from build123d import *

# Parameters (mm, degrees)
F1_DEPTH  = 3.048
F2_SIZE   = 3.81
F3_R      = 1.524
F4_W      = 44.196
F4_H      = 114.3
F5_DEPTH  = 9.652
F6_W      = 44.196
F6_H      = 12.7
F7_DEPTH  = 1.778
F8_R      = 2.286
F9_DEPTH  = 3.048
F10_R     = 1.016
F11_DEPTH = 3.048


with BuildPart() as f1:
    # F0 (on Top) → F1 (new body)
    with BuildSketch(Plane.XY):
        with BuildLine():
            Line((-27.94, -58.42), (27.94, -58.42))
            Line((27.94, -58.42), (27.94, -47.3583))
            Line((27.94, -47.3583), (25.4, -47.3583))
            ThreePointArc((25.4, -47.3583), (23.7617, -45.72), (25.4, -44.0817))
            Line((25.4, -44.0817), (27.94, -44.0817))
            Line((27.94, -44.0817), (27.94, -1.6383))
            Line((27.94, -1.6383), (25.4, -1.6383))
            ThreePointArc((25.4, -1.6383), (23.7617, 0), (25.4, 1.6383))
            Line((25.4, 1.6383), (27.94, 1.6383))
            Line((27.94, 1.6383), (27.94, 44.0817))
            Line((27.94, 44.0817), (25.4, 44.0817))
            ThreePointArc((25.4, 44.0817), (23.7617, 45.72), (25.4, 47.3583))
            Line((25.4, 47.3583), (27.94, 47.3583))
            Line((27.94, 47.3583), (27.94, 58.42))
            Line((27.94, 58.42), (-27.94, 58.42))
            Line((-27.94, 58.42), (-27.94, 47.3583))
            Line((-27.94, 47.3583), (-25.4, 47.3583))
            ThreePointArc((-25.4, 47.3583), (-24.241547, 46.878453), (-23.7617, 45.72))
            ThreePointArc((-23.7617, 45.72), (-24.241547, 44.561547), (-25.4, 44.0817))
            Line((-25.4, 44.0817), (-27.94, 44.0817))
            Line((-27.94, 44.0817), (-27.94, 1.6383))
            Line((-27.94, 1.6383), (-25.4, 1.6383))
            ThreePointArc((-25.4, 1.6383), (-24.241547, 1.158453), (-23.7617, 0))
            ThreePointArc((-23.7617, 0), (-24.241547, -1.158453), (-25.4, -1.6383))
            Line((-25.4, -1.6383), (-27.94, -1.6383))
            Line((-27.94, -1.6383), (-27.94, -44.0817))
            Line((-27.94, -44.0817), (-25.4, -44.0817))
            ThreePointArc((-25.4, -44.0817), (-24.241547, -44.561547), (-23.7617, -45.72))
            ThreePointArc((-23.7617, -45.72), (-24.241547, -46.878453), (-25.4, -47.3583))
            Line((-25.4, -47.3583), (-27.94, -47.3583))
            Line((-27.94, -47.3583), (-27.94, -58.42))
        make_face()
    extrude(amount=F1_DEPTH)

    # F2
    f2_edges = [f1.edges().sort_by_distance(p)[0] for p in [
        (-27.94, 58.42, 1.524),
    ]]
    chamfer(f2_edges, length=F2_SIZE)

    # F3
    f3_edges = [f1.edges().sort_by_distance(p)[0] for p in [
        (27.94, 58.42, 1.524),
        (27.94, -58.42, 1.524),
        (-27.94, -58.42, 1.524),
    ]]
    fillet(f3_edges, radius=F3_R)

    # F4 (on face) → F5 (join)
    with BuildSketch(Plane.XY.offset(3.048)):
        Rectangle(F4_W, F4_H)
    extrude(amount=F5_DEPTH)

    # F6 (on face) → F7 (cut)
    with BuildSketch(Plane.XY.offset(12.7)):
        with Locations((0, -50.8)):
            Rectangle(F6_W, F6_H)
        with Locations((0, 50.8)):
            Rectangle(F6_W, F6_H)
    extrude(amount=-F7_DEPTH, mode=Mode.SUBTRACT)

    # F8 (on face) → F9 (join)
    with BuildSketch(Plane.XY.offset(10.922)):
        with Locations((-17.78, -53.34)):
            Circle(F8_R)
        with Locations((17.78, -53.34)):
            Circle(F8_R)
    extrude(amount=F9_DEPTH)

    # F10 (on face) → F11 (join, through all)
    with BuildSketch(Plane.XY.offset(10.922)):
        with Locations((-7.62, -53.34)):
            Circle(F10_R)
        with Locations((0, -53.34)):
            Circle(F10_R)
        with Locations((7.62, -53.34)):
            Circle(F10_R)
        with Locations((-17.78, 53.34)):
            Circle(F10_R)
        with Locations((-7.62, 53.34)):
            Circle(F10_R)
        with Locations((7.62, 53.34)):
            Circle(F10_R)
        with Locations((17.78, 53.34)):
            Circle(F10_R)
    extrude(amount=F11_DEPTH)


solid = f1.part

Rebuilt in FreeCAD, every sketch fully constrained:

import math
import FreeCAD as App
import Part
import Sketcher
Q = App.Units.Quantity


def edges_at(feature, points):
    """Names of the edges that pass closest to the given points."""
    edges = feature.Shape.Edges
    near = lambda p: min(range(len(edges)), key=lambda i: edges[i].distToShape(Part.Vertex(*p))[0])
    return sorted({f"Edge{near(p) + 1}" for p in points})


def add_polygon(sketch, points):
    """Adds a closed chain of lines whose ends are joined by coincident constraints."""
    first, n = sketch.GeometryCount, len(points)
    for a, b in zip(points, points[1:] + points[:1]):
        sketch.addGeometry(Part.LineSegment(App.Vector(*a, 0), App.Vector(*b, 0)), False)
    for i in range(n):
        sketch.addConstraint(Sketcher.Constraint("Coincident", first + i, 2, first + (i + 1) % n, 1))

doc = App.newDocument("Part")
body = doc.addObject("PartDesign::Body", "Body")

sketch1 = body.newObject("Sketcher::SketchObject", "Sketch")
sketch1.AttachmentSupport = (doc.getObject("XY_Plane"), [""])
sketch1.MapMode = "FlatFace"
sketch1.addGeometry([
    Part.LineSegment(App.Vector(-27.94, -58.42, 0), App.Vector(27.94, -58.42, 0)),
    Part.LineSegment(App.Vector(27.94, -58.42, 0), App.Vector(27.94, -47.3583, 0)),
    Part.LineSegment(App.Vector(27.94, -47.3583, 0), App.Vector(25.4, -47.3583, 0)),
    Part.ArcOfCircle(Part.Circle(App.Vector(25.4, -45.72, 0), App.Vector(0, 0, 1), 1.6383), math.radians(90), math.radians(270)),
    Part.LineSegment(App.Vector(25.4, -44.0817, 0), App.Vector(27.94, -44.0817, 0)),
    Part.LineSegment(App.Vector(27.94, -44.0817, 0), App.Vector(27.94, -1.6383, 0)),
    Part.LineSegment(App.Vector(27.94, -1.6383, 0), App.Vector(25.4, -1.6383, 0)),
    Part.ArcOfCircle(Part.Circle(App.Vector(25.4, 0, 0), App.Vector(0, 0, 1), 1.6383), math.radians(90), math.radians(270)),
    Part.LineSegment(App.Vector(25.4, 1.6383, 0), App.Vector(27.94, 1.6383, 0)),
    Part.LineSegment(App.Vector(27.94, 1.6383, 0), App.Vector(27.94, 44.0817, 0)),
    Part.LineSegment(App.Vector(27.94, 44.0817, 0), App.Vector(25.4, 44.0817, 0)),
    Part.ArcOfCircle(Part.Circle(App.Vector(25.4, 45.72, 0), App.Vector(0, 0, 1), 1.6383), math.radians(90), math.radians(270)),
    Part.LineSegment(App.Vector(25.4, 47.3583, 0), App.Vector(27.94, 47.3583, 0)),
    Part.LineSegment(App.Vector(27.94, 47.3583, 0), App.Vector(27.94, 58.42, 0)),
    Part.LineSegment(App.Vector(27.94, 58.42, 0), App.Vector(-27.94, 58.42, 0)),
    Part.LineSegment(App.Vector(-27.94, 58.42, 0), App.Vector(-27.94, 47.3583, 0)),
    Part.LineSegment(App.Vector(-27.94, 47.3583, 0), App.Vector(-25.4, 47.3583, 0)),
    Part.ArcOfCircle(Part.Circle(App.Vector(-25.4, 45.72, 0), App.Vector(0, 0, 1), 1.6383), math.radians(0.000005), math.radians(89.999995)),
    Part.ArcOfCircle(Part.Circle(App.Vector(-25.4, 45.72, 0), App.Vector(0, 0, 1), 1.6383), math.radians(-89.999995), math.radians(-0.000005)),
    Part.LineSegment(App.Vector(-25.4, 44.0817, 0), App.Vector(-27.94, 44.0817, 0)),
    Part.LineSegment(App.Vector(-27.94, 44.0817, 0), App.Vector(-27.94, 1.6383, 0)),
    Part.LineSegment(App.Vector(-27.94, 1.6383, 0), App.Vector(-25.4, 1.6383, 0)),
    Part.ArcOfCircle(Part.Circle(App.Vector(-25.4, 0, 0), App.Vector(0, 0, 1), 1.6383), math.radians(0.000005), math.radians(89.999995)),
    Part.ArcOfCircle(Part.Circle(App.Vector(-25.4, 0, 0), App.Vector(0, 0, 1), 1.6383), math.radians(-89.999995), math.radians(-0.000005)),
    Part.LineSegment(App.Vector(-25.4, -1.6383, 0), App.Vector(-27.94, -1.6383, 0)),
    Part.LineSegment(App.Vector(-27.94, -1.6383, 0), App.Vector(-27.94, -44.0817, 0)),
    Part.LineSegment(App.Vector(-27.94, -44.0817, 0), App.Vector(-25.4, -44.0817, 0)),
    Part.ArcOfCircle(Part.Circle(App.Vector(-25.4, -45.72, 0), App.Vector(0, 0, 1), 1.6383), math.radians(0.000005), math.radians(89.999995)),
    Part.ArcOfCircle(Part.Circle(App.Vector(-25.4, -45.72, 0), App.Vector(0, 0, 1), 1.6383), math.radians(-89.999995), math.radians(-0.000005)),
    Part.LineSegment(App.Vector(-25.4, -47.3583, 0), App.Vector(-27.94, -47.3583, 0)),
    Part.LineSegment(App.Vector(-27.94, -47.3583, 0), App.Vector(-27.94, -58.42, 0)),
], False)
sketch1.addConstraint([
    Sketcher.Constraint("Coincident", 0, 2, 1, 1),
    Sketcher.Constraint("Coincident", 1, 2, 2, 1),
    Sketcher.Constraint("Tangent", 2, 2, 3, 2),
    Sketcher.Constraint("Tangent", 3, 1, 4, 1),
    Sketcher.Constraint("Coincident", 4, 2, 5, 1),
    Sketcher.Constraint("Coincident", 5, 2, 6, 1),
    Sketcher.Constraint("Tangent", 6, 2, 7, 2),
    Sketcher.Constraint("Tangent", 7, 1, 8, 1),
    Sketcher.Constraint("Coincident", 8, 2, 9, 1),
    Sketcher.Constraint("Coincident", 9, 2, 10, 1),
    Sketcher.Constraint("Tangent", 10, 2, 11, 2),
    Sketcher.Constraint("Tangent", 11, 1, 12, 1),
    Sketcher.Constraint("Coincident", 12, 2, 13, 1),
    Sketcher.Constraint("Coincident", 13, 2, 14, 1),
    Sketcher.Constraint("Coincident", 14, 2, 15, 1),
    Sketcher.Constraint("Coincident", 15, 2, 16, 1),
    Sketcher.Constraint("Tangent", 16, 2, 17, 2),
    Sketcher.Constraint("Tangent", 17, 1, 18, 2),
    Sketcher.Constraint("Tangent", 18, 1, 19, 1),
    Sketcher.Constraint("Coincident", 19, 2, 20, 1),
    Sketcher.Constraint("Coincident", 20, 2, 21, 1),
    Sketcher.Constraint("Tangent", 21, 2, 22, 2),
    Sketcher.Constraint("Tangent", 22, 1, 23, 2),
    Sketcher.Constraint("Tangent", 23, 1, 24, 1),
    Sketcher.Constraint("Coincident", 24, 2, 25, 1),
    Sketcher.Constraint("Coincident", 25, 2, 26, 1),
    Sketcher.Constraint("Tangent", 26, 2, 27, 2),
    Sketcher.Constraint("Tangent", 27, 1, 28, 2),
    Sketcher.Constraint("Tangent", 28, 1, 29, 1),
    Sketcher.Constraint("Coincident", 29, 2, 30, 1),
    Sketcher.Constraint("Coincident", 30, 2, 0, 1),
    Sketcher.Constraint("Horizontal", 0),
    Sketcher.Constraint("Vertical", 1),
    Sketcher.Constraint("Horizontal", 2),
    Sketcher.Constraint("Horizontal", 4),
    Sketcher.Constraint("Vertical", 5),
    Sketcher.Constraint("Horizontal", 6),
    Sketcher.Constraint("Horizontal", 8),
    Sketcher.Constraint("Vertical", 9),
    Sketcher.Constraint("Horizontal", 10),
    Sketcher.Constraint("Horizontal", 12),
    Sketcher.Constraint("Vertical", 13),
    Sketcher.Constraint("Horizontal", 14),
    Sketcher.Constraint("Vertical", 15),
    Sketcher.Constraint("Horizontal", 16),
    Sketcher.Constraint("Horizontal", 19),
    Sketcher.Constraint("Vertical", 20),
    Sketcher.Constraint("Horizontal", 21),
    Sketcher.Constraint("Horizontal", 24),
    Sketcher.Constraint("Vertical", 25),
    Sketcher.Constraint("Horizontal", 26),
    Sketcher.Constraint("Horizontal", 29),
    Sketcher.Constraint("Vertical", 30),
    Sketcher.Constraint("Equal", 3, 7),
    Sketcher.Constraint("Equal", 7, 11),
    Sketcher.Constraint("Equal", 11, 17),
    Sketcher.Constraint("Equal", 17, 18),
    Sketcher.Constraint("Equal", 18, 22),
    Sketcher.Constraint("Equal", 22, 23),
    Sketcher.Constraint("Equal", 23, 27),
    Sketcher.Constraint("Equal", 27, 28),
    Sketcher.Constraint("Symmetric", 3, 3, 17, 3, -1, 1),
    Sketcher.Constraint("Symmetric", 7, 3, 22, 3, -1, 1),
    Sketcher.Constraint("Symmetric", 11, 3, 27, 3, -1, 1),
    Sketcher.Constraint("Symmetric", 0, 2, 14, 2, -1, 1),
    Sketcher.Constraint("Symmetric", 11, 3, 17, 3, -2),
    Sketcher.Constraint("Symmetric", 8, 2, 20, 2, -2),
    Sketcher.Constraint("PointOnObject", 22, 1, -1),
    Sketcher.Constraint("Horizontal", 18, 3, 17, 1),
    Sketcher.Constraint("Horizontal", 28, 3, 27, 1),
    Sketcher.Constraint("Vertical", 3, 3, 7, 3),
    Sketcher.Constraint("Vertical", 1, 2, 4, 2),
    Sketcher.Constraint("Vertical", 5, 2, 8, 2),
    Sketcher.Constraint("Vertical", 9, 2, 12, 2),
    Sketcher.Constraint("Vertical", 20, 2, 24, 2),
    Sketcher.Constraint("Vertical", 25, 2, 29, 2),
    Sketcher.Constraint("DistanceX", 0, 1, 0, 2, Q("2.2 in")),
    Sketcher.Constraint("DistanceX", 2, 2, 2, 1, Q("0.1 in")),
    Sketcher.Constraint("DistanceY", 3, 3, -1, 1, Q("1.8 in")),
    Sketcher.Constraint("DistanceY", 0, 2, -1, 1, Q("2.3 in")),
    Sketcher.Constraint("Radius", 3, Q("0.0645 in")),
])
pad1 = body.newObject("PartDesign::Pad", "Pad")
pad1.Profile = sketch1
pad1.Length = Q("0.12 in")
doc.recompute()

chamfer = body.newObject("PartDesign::Chamfer", "Chamfer")
chamfer.Base = (pad1, edges_at(pad1, [(-27.94, 58.42, 1.524)]))
chamfer.Size = Q("0.15 in")
doc.recompute()

fillet = body.newObject("PartDesign::Fillet", "Fillet")
fillet.Base = (chamfer, edges_at(chamfer, [(27.94, 58.42, 1.524), (27.94, -58.42, 1.524), (-27.94, -58.42, 1.524)]))
fillet.Radius = Q("0.06 in")

sketch2 = body.newObject("Sketcher::SketchObject", "Sketch001")
sketch2.AttachmentSupport = (doc.getObject("XY_Plane"), [""])
sketch2.MapMode = "FlatFace"
sketch2.AttachmentOffset = App.Placement(App.Vector(0, 0, 0.12 * 25.4), App.Rotation())
add_polygon(sketch2, [(-22.098, 57.15), (-22.098, -57.15), (22.098, -57.15), (22.098, 57.15)])
sketch2.addConstraint([
    Sketcher.Constraint("Vertical", 0),
    Sketcher.Constraint("Horizontal", 1),
    Sketcher.Constraint("Vertical", 2),
    Sketcher.Constraint("Horizontal", 3),
    Sketcher.Constraint("Symmetric", 0, 2, 2, 2, -1, 1),
    Sketcher.Constraint("DistanceY", 0, 2, 0, 1, Q("4.5 in")),
    Sketcher.Constraint("DistanceX", 1, 1, 1, 2, Q("1.74 in")),
])
pad2 = body.newObject("PartDesign::Pad", "Pad001")
pad2.Profile = sketch2
pad2.Length = Q("0.38 in")

sketch3 = body.newObject("Sketcher::SketchObject", "Sketch002")
sketch3.AttachmentSupport = (doc.getObject("XY_Plane"), [""])
sketch3.MapMode = "FlatFace"
sketch3.AttachmentOffset = App.Placement(App.Vector(0, 0, 0.5 * 25.4), App.Rotation())
add_polygon(sketch3, [(-22.098, -44.45), (-22.098, -57.15), (22.098, -57.15), (22.098, -44.45)])
add_polygon(sketch3, [(-22.098, 57.15), (-22.098, 44.45), (22.098, 44.45), (22.098, 57.15)])
sketch3.addConstraint([
    Sketcher.Constraint("Vertical", 0),
    Sketcher.Constraint("Horizontal", 1),
    Sketcher.Constraint("Vertical", 2),
    Sketcher.Constraint("Horizontal", 3),
    Sketcher.Constraint("Vertical", 4),
    Sketcher.Constraint("Horizontal", 5),
    Sketcher.Constraint("Vertical", 6),
    Sketcher.Constraint("Horizontal", 7),
    Sketcher.Constraint("Symmetric", 2, 2, 4, 2, -1, 1),
    Sketcher.Constraint("Symmetric", 0, 2, 6, 2, -1, 1),
    Sketcher.Constraint("Vertical", 3, 2, 4, 2),
    Sketcher.Constraint("DistanceY", 0, 2, 0, 1, Q("0.5 in")),
    Sketcher.Constraint("DistanceY", 0, 2, 4, 2, Q("4 in")),
    Sketcher.Constraint("DistanceX", 1, 1, 1, 2, Q("1.74 in")),
])
pocket1 = body.newObject("PartDesign::Pocket", "Pocket")
pocket1.Profile = sketch3
pocket1.Length = Q("0.07 in")

sketch4 = body.newObject("Sketcher::SketchObject", "Sketch003")
sketch4.AttachmentSupport = (doc.getObject("XY_Plane"), [""])
sketch4.MapMode = "FlatFace"
sketch4.AttachmentOffset = App.Placement(App.Vector(0, 0, 0.43 * 25.4), App.Rotation())
sketch4.addGeometry([
    Part.Circle(App.Vector(-17.78, -53.34, 0), App.Vector(0, 0, 1), 2.286),
    Part.Circle(App.Vector(17.78, -53.34, 0), App.Vector(0, 0, 1), 2.286),
], False)
sketch4.addConstraint([
    Sketcher.Constraint("Equal", 0, 1),
    Sketcher.Constraint("Symmetric", 0, 3, 1, 3, -2),
    Sketcher.Constraint("Diameter", 0, Q("0.18 in")),
    Sketcher.Constraint("DistanceX", 0, 3, -1, 1, Q("0.7 in")),
    Sketcher.Constraint("DistanceY", 0, 3, -1, 1, Q("2.1 in")),
])
pad3 = body.newObject("PartDesign::Pad", "Pad002")
pad3.Profile = sketch4
pad3.Length = Q("0.12 in")

sketch5 = body.newObject("Sketcher::SketchObject", "Sketch004")
sketch5.AttachmentSupport = (doc.getObject("XY_Plane"), [""])
sketch5.MapMode = "FlatFace"
sketch5.AttachmentOffset = App.Placement(App.Vector(0, 0, 0.43 * 25.4), App.Rotation())
sketch5.addGeometry([
    Part.Circle(App.Vector(-7.62, -53.34, 0), App.Vector(0, 0, 1), 1.016),
    Part.Circle(App.Vector(0, -53.34, 0), App.Vector(0, 0, 1), 1.016),
    Part.Circle(App.Vector(7.62, -53.34, 0), App.Vector(0, 0, 1), 1.016),
    Part.Circle(App.Vector(-17.78, 53.34, 0), App.Vector(0, 0, 1), 1.016),
    Part.Circle(App.Vector(-7.62, 53.34, 0), App.Vector(0, 0, 1), 1.016),
    Part.Circle(App.Vector(7.62, 53.34, 0), App.Vector(0, 0, 1), 1.016),
    Part.Circle(App.Vector(17.78, 53.34, 0), App.Vector(0, 0, 1), 1.016),
], False)
sketch5.addConstraint([
    Sketcher.Constraint("Equal", 0, 1),
    Sketcher.Constraint("Equal", 1, 2),
    Sketcher.Constraint("Equal", 2, 3),
    Sketcher.Constraint("Equal", 3, 4),
    Sketcher.Constraint("Equal", 4, 5),
    Sketcher.Constraint("Equal", 5, 6),
    Sketcher.Constraint("Symmetric", 2, 3, 4, 3, -1, 1),
    Sketcher.Constraint("Symmetric", 0, 3, 5, 3, -1, 1),
    Sketcher.Constraint("Symmetric", 0, 3, 2, 3, -2),
    Sketcher.Constraint("Symmetric", 3, 3, 6, 3, -2),
    Sketcher.Constraint("PointOnObject", 1, 3, -2),
    Sketcher.Constraint("Horizontal", 0, 3, 1, 3),
    Sketcher.Constraint("Horizontal", 3, 3, 4, 3),
    Sketcher.Constraint("Diameter", 0, Q("0.08 in")),
    Sketcher.Constraint("DistanceX", 3, 3, 2, 3, Q("1 in")),
    Sketcher.Constraint("DistanceX", 0, 3, -1, 1, Q("0.3 in")),
    Sketcher.Constraint("DistanceY", 0, 3, -1, 1, Q("2.1 in")),
])
pad4 = body.newObject("PartDesign::Pad", "Pad003")
pad4.Profile = sketch5
pad4.Length = Q("0.12 in")

doc.recompute()
